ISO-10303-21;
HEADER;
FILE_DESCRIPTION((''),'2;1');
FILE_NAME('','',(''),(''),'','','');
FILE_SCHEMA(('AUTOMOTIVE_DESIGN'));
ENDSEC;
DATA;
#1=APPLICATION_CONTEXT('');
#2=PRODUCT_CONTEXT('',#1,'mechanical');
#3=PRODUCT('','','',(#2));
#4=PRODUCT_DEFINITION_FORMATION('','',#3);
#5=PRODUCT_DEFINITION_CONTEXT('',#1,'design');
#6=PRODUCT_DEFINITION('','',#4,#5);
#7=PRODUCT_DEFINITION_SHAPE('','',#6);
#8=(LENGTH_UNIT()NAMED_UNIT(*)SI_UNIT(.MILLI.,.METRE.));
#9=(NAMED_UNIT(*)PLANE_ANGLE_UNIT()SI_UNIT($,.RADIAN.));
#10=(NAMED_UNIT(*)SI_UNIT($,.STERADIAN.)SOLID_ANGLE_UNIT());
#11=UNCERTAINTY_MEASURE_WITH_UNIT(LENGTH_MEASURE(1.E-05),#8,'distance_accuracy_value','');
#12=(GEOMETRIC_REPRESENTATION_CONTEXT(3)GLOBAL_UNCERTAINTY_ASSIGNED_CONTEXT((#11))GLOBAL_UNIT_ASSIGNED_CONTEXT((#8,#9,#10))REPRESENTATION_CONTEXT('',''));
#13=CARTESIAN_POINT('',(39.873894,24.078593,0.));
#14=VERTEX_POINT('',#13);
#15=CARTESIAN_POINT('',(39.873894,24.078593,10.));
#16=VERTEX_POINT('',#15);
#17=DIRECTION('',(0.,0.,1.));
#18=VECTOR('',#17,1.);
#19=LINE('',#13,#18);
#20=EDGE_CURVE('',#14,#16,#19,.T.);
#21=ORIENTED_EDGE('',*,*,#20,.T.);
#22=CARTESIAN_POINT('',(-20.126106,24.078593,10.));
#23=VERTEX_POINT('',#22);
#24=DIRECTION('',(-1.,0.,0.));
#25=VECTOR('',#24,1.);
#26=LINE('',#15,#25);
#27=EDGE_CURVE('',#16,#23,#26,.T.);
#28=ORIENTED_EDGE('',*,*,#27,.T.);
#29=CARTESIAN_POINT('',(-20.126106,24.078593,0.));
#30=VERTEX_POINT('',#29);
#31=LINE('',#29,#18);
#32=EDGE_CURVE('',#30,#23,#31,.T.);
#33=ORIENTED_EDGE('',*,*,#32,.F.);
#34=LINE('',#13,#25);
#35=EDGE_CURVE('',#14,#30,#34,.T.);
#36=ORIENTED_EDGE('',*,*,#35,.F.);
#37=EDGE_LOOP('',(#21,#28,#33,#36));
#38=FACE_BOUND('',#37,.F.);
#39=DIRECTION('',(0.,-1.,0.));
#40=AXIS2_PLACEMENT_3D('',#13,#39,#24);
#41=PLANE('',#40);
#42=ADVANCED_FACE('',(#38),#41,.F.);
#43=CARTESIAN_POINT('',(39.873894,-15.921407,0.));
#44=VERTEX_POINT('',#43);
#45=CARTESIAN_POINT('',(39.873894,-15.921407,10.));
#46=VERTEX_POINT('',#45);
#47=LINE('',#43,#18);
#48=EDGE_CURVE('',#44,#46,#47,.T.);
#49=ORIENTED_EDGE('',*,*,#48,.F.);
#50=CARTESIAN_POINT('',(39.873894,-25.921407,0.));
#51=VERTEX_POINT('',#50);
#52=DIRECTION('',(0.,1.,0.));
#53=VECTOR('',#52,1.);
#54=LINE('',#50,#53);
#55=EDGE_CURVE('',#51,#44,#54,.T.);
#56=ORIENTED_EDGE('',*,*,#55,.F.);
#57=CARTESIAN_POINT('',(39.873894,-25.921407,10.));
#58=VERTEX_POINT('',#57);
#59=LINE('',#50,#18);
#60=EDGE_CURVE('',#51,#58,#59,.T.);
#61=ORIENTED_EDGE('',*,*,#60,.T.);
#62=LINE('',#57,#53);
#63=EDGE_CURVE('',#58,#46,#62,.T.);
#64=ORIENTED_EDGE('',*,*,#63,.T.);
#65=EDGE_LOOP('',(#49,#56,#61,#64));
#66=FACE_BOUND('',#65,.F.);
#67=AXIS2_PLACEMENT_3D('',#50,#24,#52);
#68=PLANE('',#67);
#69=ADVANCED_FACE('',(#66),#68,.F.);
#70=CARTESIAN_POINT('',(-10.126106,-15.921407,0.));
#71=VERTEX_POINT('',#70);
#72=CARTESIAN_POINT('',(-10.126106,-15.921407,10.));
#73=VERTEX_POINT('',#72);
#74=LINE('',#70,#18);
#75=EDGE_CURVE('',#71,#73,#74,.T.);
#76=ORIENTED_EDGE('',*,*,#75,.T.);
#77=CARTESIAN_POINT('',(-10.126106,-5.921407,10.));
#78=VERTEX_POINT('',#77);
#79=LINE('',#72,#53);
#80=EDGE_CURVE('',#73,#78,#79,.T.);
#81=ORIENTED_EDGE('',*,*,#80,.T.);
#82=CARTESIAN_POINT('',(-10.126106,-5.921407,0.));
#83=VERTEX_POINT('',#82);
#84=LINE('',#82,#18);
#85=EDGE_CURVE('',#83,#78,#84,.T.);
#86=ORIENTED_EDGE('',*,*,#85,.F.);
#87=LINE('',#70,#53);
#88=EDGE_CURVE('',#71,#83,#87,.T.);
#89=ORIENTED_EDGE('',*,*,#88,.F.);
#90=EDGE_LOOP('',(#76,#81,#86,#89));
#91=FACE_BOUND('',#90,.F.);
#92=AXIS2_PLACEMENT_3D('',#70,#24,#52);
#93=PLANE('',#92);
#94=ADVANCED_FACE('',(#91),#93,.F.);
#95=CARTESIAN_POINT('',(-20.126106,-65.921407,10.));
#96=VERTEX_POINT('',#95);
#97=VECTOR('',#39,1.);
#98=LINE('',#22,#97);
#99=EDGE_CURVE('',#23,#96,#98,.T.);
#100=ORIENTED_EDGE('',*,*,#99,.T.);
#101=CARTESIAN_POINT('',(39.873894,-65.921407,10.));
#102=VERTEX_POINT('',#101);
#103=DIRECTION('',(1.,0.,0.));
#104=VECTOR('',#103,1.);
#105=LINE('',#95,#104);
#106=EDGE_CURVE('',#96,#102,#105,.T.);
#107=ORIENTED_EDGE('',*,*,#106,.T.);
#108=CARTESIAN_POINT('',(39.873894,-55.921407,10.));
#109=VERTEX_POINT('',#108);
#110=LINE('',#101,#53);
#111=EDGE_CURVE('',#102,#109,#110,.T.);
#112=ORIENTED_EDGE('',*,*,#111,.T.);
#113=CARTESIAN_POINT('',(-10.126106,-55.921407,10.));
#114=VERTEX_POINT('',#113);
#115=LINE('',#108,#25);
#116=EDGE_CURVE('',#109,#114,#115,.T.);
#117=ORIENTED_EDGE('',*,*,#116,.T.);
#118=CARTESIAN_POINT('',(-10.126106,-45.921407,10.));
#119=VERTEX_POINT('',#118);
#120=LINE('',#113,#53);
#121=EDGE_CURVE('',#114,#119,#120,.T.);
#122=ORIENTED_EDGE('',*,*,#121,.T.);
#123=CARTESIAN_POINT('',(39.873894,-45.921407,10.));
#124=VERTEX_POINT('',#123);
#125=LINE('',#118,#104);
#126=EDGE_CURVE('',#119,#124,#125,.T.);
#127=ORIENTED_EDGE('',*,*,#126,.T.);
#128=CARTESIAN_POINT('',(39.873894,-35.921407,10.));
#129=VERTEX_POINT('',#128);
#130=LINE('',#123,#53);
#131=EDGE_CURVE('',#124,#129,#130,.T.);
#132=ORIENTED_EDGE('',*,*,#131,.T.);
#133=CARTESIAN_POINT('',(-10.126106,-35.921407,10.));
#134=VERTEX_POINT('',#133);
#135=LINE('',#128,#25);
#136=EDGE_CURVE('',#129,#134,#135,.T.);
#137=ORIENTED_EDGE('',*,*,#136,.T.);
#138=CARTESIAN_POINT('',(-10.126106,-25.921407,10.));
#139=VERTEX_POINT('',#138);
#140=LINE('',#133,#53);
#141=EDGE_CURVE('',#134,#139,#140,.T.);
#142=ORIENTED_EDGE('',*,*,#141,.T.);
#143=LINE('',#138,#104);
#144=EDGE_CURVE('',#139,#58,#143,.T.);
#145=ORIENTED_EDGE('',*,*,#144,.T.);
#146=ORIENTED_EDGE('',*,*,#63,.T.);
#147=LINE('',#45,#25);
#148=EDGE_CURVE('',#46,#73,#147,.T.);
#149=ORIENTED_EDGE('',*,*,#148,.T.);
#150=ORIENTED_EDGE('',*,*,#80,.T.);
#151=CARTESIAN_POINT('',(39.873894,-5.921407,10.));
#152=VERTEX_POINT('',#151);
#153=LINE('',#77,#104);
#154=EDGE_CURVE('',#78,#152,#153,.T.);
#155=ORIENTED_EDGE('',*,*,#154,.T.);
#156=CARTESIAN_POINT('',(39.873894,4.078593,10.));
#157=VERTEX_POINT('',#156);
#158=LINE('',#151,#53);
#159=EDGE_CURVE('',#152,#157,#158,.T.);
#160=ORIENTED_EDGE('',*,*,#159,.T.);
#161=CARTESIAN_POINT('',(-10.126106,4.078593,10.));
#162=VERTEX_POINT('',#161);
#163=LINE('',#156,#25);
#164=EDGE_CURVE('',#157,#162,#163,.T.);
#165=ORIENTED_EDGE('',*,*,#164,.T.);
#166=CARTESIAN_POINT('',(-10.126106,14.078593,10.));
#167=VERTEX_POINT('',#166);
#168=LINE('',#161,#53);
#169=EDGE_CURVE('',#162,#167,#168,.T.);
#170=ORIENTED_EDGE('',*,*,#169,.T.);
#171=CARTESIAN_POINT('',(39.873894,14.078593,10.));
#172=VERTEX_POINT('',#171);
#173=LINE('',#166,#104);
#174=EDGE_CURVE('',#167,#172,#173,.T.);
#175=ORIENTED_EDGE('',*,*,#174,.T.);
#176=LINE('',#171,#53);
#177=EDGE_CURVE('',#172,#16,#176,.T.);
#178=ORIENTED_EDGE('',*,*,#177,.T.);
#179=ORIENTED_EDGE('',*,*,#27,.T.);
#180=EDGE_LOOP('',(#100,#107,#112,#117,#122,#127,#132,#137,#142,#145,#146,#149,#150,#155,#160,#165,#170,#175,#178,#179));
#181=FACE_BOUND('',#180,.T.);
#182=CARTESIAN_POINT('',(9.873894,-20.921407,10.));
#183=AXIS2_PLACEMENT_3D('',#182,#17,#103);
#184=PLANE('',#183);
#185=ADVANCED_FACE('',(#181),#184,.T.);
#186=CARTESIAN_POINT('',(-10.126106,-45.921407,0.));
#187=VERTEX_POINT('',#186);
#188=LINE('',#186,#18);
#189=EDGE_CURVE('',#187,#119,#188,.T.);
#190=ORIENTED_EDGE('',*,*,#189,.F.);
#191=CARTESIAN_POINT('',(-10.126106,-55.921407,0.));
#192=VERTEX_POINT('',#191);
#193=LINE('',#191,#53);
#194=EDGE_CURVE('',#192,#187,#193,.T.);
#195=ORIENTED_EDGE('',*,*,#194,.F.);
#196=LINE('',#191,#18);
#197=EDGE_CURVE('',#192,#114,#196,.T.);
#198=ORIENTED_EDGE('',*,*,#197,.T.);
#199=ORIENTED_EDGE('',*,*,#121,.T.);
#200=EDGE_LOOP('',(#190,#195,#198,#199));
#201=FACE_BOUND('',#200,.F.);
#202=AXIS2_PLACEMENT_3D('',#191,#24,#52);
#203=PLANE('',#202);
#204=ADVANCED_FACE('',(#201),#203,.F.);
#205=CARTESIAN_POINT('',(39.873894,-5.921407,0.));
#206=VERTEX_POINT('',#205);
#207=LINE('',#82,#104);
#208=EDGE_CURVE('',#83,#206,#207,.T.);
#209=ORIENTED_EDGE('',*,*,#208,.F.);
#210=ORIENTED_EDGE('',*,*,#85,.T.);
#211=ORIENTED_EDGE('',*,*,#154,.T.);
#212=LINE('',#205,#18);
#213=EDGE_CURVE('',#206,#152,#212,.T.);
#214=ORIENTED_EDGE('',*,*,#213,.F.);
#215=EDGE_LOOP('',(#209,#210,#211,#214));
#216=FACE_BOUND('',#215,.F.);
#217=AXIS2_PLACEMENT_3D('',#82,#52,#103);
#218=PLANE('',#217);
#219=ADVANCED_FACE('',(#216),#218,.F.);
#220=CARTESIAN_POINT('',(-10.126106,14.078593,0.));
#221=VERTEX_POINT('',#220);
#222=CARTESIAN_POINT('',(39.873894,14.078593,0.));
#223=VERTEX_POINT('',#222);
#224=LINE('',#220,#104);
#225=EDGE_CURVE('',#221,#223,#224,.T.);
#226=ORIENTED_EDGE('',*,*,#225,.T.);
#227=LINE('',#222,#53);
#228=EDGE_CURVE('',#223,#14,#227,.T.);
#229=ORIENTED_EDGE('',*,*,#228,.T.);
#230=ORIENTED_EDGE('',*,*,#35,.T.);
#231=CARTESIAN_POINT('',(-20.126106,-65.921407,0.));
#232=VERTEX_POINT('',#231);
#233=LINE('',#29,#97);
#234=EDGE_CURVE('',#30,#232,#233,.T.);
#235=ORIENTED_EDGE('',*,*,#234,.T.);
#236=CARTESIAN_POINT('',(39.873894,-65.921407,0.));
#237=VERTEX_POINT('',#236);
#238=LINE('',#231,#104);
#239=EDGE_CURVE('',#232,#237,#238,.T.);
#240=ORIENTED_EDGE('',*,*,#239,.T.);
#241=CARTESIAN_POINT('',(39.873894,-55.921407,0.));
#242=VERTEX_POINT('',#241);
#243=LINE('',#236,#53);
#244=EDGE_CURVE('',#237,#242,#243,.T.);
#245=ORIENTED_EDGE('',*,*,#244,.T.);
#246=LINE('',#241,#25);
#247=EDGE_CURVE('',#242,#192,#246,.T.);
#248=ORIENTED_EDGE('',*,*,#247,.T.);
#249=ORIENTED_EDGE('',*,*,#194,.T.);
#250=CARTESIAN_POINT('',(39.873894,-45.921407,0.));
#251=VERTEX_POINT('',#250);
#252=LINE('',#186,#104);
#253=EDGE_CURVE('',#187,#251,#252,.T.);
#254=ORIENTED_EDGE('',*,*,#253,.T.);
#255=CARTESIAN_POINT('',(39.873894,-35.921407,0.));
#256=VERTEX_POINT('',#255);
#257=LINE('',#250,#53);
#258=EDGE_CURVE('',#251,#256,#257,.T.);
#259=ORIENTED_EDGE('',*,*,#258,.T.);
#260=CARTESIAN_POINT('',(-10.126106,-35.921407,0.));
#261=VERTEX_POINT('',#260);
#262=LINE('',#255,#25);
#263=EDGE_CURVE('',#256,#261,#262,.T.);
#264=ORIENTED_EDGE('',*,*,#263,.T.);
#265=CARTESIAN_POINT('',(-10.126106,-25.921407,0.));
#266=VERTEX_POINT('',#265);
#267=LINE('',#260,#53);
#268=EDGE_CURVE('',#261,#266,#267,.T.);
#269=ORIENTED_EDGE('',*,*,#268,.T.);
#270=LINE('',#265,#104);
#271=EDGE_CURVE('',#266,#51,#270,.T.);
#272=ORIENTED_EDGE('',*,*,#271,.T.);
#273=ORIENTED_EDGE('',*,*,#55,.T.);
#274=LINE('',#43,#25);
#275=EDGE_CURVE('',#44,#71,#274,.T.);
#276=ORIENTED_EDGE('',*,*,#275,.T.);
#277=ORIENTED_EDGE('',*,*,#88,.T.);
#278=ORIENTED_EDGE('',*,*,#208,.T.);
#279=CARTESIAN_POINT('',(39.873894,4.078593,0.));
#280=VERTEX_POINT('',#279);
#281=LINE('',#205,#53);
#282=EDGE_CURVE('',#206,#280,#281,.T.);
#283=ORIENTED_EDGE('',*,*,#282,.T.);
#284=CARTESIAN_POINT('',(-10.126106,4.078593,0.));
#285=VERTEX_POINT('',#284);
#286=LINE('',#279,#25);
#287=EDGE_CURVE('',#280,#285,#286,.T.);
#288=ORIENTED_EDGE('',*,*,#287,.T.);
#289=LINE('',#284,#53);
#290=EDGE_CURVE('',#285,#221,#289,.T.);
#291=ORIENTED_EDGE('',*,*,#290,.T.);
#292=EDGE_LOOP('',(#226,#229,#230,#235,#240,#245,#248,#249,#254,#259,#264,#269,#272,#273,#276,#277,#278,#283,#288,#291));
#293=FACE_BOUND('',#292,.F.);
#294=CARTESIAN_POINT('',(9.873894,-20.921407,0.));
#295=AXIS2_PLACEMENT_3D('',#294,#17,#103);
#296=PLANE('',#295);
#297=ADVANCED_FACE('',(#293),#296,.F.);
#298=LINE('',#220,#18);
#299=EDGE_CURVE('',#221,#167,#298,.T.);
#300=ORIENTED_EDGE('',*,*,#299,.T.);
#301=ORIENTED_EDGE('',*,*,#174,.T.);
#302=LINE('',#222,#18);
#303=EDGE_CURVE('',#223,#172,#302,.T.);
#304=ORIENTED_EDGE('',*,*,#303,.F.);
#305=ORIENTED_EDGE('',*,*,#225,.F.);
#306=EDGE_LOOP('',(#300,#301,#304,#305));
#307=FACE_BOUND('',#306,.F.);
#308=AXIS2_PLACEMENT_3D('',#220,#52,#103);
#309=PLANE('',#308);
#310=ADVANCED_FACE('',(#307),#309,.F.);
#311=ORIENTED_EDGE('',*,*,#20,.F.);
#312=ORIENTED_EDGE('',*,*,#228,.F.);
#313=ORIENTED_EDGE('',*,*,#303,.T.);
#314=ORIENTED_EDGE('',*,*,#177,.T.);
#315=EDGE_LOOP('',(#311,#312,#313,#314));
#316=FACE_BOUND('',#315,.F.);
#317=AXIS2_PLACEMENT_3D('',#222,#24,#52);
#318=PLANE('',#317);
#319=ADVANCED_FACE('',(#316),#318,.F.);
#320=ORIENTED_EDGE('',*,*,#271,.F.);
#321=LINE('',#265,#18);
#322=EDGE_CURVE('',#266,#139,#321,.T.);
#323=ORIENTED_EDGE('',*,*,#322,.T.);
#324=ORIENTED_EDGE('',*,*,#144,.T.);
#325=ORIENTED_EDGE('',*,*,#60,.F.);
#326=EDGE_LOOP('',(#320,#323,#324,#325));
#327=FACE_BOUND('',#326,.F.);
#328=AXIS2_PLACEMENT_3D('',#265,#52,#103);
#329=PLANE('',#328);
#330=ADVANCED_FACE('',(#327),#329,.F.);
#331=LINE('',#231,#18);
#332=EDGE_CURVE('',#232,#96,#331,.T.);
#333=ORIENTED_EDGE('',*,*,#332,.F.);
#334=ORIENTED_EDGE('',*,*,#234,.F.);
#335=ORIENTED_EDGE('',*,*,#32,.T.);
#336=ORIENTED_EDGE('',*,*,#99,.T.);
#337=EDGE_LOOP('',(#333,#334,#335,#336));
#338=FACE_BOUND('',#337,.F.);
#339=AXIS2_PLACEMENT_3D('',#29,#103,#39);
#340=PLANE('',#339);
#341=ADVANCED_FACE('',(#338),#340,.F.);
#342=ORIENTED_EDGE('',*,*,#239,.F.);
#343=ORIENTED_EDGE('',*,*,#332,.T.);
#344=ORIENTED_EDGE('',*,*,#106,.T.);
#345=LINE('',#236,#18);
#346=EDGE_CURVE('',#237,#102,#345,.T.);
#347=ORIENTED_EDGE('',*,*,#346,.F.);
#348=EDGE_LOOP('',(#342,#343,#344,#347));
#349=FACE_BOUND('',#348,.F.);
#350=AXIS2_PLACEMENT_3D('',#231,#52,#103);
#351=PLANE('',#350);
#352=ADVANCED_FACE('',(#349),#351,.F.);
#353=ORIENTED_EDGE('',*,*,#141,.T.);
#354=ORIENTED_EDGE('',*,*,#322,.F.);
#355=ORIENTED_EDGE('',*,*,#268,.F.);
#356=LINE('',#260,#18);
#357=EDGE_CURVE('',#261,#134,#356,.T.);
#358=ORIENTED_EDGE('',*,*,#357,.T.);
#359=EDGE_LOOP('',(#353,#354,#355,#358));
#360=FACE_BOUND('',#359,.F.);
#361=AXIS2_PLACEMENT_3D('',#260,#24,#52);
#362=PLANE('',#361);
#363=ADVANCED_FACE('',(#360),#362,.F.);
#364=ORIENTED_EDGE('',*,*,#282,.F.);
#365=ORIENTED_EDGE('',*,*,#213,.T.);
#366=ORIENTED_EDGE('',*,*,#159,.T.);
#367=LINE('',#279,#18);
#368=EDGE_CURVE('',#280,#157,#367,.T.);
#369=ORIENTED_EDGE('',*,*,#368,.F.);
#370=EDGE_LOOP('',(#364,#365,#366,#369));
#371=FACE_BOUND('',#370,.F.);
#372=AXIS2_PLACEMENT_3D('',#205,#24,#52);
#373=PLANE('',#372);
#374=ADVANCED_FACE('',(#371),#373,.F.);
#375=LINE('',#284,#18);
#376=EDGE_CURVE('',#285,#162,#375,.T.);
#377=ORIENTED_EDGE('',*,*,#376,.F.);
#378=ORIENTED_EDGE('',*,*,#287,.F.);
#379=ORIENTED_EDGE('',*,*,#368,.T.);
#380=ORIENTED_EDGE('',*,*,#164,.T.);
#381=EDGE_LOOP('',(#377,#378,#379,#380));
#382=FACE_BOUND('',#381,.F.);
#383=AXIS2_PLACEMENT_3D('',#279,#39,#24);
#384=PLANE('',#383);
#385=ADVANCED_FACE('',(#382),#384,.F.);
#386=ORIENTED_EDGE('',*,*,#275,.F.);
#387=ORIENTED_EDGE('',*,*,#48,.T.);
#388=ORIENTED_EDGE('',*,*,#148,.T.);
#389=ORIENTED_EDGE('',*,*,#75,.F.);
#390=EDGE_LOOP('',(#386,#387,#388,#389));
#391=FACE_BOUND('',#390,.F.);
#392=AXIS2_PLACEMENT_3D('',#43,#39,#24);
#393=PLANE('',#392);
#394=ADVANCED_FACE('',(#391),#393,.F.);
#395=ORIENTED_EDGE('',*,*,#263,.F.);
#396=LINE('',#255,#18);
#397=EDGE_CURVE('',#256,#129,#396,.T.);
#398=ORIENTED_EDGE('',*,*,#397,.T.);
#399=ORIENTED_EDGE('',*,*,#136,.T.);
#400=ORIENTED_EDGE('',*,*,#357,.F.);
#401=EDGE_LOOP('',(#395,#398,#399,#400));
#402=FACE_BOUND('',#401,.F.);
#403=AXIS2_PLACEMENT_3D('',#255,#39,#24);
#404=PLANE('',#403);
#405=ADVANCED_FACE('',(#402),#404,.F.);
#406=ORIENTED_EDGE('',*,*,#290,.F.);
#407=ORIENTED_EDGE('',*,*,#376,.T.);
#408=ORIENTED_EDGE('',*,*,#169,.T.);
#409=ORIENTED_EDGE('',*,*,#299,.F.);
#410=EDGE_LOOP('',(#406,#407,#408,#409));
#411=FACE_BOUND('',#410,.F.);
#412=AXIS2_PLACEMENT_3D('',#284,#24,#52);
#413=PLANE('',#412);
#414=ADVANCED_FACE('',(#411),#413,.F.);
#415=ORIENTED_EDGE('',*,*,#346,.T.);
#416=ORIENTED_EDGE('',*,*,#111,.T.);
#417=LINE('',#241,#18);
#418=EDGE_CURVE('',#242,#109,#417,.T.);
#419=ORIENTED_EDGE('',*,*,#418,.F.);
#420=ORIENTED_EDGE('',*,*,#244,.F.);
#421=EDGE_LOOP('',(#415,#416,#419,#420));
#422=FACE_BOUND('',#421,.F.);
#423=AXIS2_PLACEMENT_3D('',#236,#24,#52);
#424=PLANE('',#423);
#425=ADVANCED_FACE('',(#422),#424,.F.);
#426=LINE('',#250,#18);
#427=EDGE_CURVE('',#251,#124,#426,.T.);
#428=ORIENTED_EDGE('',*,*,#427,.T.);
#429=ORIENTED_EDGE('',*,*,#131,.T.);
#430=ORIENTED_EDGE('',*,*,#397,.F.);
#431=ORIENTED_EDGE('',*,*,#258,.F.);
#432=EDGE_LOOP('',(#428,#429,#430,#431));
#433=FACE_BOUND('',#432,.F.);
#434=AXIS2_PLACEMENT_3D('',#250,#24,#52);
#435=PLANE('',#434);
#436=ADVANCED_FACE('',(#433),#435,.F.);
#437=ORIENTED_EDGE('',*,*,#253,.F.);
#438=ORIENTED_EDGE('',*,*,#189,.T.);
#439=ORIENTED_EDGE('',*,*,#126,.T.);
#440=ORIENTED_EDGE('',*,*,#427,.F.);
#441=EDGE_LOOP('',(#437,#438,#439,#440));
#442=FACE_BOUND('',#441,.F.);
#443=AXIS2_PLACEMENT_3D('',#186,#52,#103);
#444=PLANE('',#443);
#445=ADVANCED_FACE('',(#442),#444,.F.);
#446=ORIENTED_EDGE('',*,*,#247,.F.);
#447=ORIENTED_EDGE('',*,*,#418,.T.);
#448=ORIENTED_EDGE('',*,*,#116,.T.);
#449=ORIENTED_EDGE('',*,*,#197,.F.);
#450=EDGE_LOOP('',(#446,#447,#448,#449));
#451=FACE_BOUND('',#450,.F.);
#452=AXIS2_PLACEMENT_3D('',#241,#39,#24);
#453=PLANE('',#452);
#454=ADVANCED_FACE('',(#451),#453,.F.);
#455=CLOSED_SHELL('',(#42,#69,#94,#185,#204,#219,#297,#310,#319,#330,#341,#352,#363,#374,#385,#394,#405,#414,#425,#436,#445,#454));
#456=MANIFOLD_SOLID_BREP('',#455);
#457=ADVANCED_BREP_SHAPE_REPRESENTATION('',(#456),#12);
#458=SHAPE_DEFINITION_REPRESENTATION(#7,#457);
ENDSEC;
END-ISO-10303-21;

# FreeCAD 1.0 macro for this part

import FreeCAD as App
import Part
import Sketcher


def add_polygon(sketch, points):
    """Adds a closed chain of lines whose ends are joined by coincident constraints."""
    first, n = sketch.GeometryCount, len(points)
    for a, b in zip(points, points[1:] + points[:1]):
        sketch.addGeometry(Part.LineSegment(App.Vector(*a, 0), App.Vector(*b, 0)), False)
    for i in range(n):
        sketch.addConstraint(Sketcher.Constraint("Coincident", first + i, 2, first + (i + 1) % n, 1))

doc = App.newDocument("Part")
body = doc.addObject("PartDesign::Body", "Body")

# Sketch on XY plane
sketch1 = body.newObject("Sketcher::SketchObject", "Sketch")
sketch1.AttachmentSupport = (doc.getObject("XY_Plane"), [""])
sketch1.MapMode = "FlatFace"
add_polygon(sketch1, [(40, 24), (-20, 24), (-20, -66), (40, -66), (40, -56), (-10, -56), (-10, -46), (40, -46), (40, -36), (-10, -36), (-10, -26), (40, -26), (40, -16), (-10, -16), (-10, -6), (40, -6), (40, 4), (-10, 4), (-10, 14), (40, 14)])  # lines 0-19
sketch1.addConstraint([
    Sketcher.Constraint("Horizontal", 0),
    Sketcher.Constraint("Vertical", 1),
    Sketcher.Constraint("Horizontal", 2),
    Sketcher.Constraint("Vertical", 3),
    Sketcher.Constraint("Horizontal", 4),
    Sketcher.Constraint("Vertical", 5),
    Sketcher.Constraint("Horizontal", 6),
    Sketcher.Constraint("Vertical", 7),
    Sketcher.Constraint("Horizontal", 8),
    Sketcher.Constraint("Vertical", 9),
    Sketcher.Constraint("Horizontal", 10),
    Sketcher.Constraint("Vertical", 11),
    Sketcher.Constraint("Horizontal", 12),
    Sketcher.Constraint("Vertical", 13),
    Sketcher.Constraint("Horizontal", 14),
    Sketcher.Constraint("Vertical", 15),
    Sketcher.Constraint("Horizontal", 16),
    Sketcher.Constraint("Vertical", 17),
    Sketcher.Constraint("Horizontal", 18),
    Sketcher.Constraint("Vertical", 19),
    Sketcher.Constraint("Vertical", 3, 2, 6, 2),
    Sketcher.Constraint("Vertical", 5, 2, 8, 2),
    Sketcher.Constraint("Vertical", 7, 2, 10, 2),
    Sketcher.Constraint("Vertical", 9, 2, 12, 2),
    Sketcher.Constraint("Vertical", 11, 2, 14, 2),
    Sketcher.Constraint("Vertical", 13, 2, 16, 2),
    Sketcher.Constraint("Vertical", 15, 2, 18, 2),
    Sketcher.Constraint("Equal", 3, 5),
    Sketcher.Constraint("Equal", 5, 7),
    Sketcher.Constraint("Equal", 7, 9),
    Sketcher.Constraint("Equal", 9, 11),
    Sketcher.Constraint("Equal", 11, 13),
    Sketcher.Constraint("Equal", 13, 15),
    Sketcher.Constraint("Equal", 15, 17),
    Sketcher.Constraint("Equal", 17, 19),
    Sketcher.Constraint("DistanceX", 0, 2, 0, 1, 60.0),
    Sketcher.Constraint("DistanceX", 4, 2, 4, 1, 50.0),
    Sketcher.Constraint("DistanceY", 1, 2, 1, 1, 90.0),
    Sketcher.Constraint("DistanceX", 0, 2, -1, 1, 20.126106),
    Sketcher.Constraint("DistanceY", -1, 1, 0, 2, 24.078593),
])
pad1 = body.newObject("PartDesign::Pad", "Pad")
pad1.Profile = sketch1
pad1.Length = 10

doc.recompute()
